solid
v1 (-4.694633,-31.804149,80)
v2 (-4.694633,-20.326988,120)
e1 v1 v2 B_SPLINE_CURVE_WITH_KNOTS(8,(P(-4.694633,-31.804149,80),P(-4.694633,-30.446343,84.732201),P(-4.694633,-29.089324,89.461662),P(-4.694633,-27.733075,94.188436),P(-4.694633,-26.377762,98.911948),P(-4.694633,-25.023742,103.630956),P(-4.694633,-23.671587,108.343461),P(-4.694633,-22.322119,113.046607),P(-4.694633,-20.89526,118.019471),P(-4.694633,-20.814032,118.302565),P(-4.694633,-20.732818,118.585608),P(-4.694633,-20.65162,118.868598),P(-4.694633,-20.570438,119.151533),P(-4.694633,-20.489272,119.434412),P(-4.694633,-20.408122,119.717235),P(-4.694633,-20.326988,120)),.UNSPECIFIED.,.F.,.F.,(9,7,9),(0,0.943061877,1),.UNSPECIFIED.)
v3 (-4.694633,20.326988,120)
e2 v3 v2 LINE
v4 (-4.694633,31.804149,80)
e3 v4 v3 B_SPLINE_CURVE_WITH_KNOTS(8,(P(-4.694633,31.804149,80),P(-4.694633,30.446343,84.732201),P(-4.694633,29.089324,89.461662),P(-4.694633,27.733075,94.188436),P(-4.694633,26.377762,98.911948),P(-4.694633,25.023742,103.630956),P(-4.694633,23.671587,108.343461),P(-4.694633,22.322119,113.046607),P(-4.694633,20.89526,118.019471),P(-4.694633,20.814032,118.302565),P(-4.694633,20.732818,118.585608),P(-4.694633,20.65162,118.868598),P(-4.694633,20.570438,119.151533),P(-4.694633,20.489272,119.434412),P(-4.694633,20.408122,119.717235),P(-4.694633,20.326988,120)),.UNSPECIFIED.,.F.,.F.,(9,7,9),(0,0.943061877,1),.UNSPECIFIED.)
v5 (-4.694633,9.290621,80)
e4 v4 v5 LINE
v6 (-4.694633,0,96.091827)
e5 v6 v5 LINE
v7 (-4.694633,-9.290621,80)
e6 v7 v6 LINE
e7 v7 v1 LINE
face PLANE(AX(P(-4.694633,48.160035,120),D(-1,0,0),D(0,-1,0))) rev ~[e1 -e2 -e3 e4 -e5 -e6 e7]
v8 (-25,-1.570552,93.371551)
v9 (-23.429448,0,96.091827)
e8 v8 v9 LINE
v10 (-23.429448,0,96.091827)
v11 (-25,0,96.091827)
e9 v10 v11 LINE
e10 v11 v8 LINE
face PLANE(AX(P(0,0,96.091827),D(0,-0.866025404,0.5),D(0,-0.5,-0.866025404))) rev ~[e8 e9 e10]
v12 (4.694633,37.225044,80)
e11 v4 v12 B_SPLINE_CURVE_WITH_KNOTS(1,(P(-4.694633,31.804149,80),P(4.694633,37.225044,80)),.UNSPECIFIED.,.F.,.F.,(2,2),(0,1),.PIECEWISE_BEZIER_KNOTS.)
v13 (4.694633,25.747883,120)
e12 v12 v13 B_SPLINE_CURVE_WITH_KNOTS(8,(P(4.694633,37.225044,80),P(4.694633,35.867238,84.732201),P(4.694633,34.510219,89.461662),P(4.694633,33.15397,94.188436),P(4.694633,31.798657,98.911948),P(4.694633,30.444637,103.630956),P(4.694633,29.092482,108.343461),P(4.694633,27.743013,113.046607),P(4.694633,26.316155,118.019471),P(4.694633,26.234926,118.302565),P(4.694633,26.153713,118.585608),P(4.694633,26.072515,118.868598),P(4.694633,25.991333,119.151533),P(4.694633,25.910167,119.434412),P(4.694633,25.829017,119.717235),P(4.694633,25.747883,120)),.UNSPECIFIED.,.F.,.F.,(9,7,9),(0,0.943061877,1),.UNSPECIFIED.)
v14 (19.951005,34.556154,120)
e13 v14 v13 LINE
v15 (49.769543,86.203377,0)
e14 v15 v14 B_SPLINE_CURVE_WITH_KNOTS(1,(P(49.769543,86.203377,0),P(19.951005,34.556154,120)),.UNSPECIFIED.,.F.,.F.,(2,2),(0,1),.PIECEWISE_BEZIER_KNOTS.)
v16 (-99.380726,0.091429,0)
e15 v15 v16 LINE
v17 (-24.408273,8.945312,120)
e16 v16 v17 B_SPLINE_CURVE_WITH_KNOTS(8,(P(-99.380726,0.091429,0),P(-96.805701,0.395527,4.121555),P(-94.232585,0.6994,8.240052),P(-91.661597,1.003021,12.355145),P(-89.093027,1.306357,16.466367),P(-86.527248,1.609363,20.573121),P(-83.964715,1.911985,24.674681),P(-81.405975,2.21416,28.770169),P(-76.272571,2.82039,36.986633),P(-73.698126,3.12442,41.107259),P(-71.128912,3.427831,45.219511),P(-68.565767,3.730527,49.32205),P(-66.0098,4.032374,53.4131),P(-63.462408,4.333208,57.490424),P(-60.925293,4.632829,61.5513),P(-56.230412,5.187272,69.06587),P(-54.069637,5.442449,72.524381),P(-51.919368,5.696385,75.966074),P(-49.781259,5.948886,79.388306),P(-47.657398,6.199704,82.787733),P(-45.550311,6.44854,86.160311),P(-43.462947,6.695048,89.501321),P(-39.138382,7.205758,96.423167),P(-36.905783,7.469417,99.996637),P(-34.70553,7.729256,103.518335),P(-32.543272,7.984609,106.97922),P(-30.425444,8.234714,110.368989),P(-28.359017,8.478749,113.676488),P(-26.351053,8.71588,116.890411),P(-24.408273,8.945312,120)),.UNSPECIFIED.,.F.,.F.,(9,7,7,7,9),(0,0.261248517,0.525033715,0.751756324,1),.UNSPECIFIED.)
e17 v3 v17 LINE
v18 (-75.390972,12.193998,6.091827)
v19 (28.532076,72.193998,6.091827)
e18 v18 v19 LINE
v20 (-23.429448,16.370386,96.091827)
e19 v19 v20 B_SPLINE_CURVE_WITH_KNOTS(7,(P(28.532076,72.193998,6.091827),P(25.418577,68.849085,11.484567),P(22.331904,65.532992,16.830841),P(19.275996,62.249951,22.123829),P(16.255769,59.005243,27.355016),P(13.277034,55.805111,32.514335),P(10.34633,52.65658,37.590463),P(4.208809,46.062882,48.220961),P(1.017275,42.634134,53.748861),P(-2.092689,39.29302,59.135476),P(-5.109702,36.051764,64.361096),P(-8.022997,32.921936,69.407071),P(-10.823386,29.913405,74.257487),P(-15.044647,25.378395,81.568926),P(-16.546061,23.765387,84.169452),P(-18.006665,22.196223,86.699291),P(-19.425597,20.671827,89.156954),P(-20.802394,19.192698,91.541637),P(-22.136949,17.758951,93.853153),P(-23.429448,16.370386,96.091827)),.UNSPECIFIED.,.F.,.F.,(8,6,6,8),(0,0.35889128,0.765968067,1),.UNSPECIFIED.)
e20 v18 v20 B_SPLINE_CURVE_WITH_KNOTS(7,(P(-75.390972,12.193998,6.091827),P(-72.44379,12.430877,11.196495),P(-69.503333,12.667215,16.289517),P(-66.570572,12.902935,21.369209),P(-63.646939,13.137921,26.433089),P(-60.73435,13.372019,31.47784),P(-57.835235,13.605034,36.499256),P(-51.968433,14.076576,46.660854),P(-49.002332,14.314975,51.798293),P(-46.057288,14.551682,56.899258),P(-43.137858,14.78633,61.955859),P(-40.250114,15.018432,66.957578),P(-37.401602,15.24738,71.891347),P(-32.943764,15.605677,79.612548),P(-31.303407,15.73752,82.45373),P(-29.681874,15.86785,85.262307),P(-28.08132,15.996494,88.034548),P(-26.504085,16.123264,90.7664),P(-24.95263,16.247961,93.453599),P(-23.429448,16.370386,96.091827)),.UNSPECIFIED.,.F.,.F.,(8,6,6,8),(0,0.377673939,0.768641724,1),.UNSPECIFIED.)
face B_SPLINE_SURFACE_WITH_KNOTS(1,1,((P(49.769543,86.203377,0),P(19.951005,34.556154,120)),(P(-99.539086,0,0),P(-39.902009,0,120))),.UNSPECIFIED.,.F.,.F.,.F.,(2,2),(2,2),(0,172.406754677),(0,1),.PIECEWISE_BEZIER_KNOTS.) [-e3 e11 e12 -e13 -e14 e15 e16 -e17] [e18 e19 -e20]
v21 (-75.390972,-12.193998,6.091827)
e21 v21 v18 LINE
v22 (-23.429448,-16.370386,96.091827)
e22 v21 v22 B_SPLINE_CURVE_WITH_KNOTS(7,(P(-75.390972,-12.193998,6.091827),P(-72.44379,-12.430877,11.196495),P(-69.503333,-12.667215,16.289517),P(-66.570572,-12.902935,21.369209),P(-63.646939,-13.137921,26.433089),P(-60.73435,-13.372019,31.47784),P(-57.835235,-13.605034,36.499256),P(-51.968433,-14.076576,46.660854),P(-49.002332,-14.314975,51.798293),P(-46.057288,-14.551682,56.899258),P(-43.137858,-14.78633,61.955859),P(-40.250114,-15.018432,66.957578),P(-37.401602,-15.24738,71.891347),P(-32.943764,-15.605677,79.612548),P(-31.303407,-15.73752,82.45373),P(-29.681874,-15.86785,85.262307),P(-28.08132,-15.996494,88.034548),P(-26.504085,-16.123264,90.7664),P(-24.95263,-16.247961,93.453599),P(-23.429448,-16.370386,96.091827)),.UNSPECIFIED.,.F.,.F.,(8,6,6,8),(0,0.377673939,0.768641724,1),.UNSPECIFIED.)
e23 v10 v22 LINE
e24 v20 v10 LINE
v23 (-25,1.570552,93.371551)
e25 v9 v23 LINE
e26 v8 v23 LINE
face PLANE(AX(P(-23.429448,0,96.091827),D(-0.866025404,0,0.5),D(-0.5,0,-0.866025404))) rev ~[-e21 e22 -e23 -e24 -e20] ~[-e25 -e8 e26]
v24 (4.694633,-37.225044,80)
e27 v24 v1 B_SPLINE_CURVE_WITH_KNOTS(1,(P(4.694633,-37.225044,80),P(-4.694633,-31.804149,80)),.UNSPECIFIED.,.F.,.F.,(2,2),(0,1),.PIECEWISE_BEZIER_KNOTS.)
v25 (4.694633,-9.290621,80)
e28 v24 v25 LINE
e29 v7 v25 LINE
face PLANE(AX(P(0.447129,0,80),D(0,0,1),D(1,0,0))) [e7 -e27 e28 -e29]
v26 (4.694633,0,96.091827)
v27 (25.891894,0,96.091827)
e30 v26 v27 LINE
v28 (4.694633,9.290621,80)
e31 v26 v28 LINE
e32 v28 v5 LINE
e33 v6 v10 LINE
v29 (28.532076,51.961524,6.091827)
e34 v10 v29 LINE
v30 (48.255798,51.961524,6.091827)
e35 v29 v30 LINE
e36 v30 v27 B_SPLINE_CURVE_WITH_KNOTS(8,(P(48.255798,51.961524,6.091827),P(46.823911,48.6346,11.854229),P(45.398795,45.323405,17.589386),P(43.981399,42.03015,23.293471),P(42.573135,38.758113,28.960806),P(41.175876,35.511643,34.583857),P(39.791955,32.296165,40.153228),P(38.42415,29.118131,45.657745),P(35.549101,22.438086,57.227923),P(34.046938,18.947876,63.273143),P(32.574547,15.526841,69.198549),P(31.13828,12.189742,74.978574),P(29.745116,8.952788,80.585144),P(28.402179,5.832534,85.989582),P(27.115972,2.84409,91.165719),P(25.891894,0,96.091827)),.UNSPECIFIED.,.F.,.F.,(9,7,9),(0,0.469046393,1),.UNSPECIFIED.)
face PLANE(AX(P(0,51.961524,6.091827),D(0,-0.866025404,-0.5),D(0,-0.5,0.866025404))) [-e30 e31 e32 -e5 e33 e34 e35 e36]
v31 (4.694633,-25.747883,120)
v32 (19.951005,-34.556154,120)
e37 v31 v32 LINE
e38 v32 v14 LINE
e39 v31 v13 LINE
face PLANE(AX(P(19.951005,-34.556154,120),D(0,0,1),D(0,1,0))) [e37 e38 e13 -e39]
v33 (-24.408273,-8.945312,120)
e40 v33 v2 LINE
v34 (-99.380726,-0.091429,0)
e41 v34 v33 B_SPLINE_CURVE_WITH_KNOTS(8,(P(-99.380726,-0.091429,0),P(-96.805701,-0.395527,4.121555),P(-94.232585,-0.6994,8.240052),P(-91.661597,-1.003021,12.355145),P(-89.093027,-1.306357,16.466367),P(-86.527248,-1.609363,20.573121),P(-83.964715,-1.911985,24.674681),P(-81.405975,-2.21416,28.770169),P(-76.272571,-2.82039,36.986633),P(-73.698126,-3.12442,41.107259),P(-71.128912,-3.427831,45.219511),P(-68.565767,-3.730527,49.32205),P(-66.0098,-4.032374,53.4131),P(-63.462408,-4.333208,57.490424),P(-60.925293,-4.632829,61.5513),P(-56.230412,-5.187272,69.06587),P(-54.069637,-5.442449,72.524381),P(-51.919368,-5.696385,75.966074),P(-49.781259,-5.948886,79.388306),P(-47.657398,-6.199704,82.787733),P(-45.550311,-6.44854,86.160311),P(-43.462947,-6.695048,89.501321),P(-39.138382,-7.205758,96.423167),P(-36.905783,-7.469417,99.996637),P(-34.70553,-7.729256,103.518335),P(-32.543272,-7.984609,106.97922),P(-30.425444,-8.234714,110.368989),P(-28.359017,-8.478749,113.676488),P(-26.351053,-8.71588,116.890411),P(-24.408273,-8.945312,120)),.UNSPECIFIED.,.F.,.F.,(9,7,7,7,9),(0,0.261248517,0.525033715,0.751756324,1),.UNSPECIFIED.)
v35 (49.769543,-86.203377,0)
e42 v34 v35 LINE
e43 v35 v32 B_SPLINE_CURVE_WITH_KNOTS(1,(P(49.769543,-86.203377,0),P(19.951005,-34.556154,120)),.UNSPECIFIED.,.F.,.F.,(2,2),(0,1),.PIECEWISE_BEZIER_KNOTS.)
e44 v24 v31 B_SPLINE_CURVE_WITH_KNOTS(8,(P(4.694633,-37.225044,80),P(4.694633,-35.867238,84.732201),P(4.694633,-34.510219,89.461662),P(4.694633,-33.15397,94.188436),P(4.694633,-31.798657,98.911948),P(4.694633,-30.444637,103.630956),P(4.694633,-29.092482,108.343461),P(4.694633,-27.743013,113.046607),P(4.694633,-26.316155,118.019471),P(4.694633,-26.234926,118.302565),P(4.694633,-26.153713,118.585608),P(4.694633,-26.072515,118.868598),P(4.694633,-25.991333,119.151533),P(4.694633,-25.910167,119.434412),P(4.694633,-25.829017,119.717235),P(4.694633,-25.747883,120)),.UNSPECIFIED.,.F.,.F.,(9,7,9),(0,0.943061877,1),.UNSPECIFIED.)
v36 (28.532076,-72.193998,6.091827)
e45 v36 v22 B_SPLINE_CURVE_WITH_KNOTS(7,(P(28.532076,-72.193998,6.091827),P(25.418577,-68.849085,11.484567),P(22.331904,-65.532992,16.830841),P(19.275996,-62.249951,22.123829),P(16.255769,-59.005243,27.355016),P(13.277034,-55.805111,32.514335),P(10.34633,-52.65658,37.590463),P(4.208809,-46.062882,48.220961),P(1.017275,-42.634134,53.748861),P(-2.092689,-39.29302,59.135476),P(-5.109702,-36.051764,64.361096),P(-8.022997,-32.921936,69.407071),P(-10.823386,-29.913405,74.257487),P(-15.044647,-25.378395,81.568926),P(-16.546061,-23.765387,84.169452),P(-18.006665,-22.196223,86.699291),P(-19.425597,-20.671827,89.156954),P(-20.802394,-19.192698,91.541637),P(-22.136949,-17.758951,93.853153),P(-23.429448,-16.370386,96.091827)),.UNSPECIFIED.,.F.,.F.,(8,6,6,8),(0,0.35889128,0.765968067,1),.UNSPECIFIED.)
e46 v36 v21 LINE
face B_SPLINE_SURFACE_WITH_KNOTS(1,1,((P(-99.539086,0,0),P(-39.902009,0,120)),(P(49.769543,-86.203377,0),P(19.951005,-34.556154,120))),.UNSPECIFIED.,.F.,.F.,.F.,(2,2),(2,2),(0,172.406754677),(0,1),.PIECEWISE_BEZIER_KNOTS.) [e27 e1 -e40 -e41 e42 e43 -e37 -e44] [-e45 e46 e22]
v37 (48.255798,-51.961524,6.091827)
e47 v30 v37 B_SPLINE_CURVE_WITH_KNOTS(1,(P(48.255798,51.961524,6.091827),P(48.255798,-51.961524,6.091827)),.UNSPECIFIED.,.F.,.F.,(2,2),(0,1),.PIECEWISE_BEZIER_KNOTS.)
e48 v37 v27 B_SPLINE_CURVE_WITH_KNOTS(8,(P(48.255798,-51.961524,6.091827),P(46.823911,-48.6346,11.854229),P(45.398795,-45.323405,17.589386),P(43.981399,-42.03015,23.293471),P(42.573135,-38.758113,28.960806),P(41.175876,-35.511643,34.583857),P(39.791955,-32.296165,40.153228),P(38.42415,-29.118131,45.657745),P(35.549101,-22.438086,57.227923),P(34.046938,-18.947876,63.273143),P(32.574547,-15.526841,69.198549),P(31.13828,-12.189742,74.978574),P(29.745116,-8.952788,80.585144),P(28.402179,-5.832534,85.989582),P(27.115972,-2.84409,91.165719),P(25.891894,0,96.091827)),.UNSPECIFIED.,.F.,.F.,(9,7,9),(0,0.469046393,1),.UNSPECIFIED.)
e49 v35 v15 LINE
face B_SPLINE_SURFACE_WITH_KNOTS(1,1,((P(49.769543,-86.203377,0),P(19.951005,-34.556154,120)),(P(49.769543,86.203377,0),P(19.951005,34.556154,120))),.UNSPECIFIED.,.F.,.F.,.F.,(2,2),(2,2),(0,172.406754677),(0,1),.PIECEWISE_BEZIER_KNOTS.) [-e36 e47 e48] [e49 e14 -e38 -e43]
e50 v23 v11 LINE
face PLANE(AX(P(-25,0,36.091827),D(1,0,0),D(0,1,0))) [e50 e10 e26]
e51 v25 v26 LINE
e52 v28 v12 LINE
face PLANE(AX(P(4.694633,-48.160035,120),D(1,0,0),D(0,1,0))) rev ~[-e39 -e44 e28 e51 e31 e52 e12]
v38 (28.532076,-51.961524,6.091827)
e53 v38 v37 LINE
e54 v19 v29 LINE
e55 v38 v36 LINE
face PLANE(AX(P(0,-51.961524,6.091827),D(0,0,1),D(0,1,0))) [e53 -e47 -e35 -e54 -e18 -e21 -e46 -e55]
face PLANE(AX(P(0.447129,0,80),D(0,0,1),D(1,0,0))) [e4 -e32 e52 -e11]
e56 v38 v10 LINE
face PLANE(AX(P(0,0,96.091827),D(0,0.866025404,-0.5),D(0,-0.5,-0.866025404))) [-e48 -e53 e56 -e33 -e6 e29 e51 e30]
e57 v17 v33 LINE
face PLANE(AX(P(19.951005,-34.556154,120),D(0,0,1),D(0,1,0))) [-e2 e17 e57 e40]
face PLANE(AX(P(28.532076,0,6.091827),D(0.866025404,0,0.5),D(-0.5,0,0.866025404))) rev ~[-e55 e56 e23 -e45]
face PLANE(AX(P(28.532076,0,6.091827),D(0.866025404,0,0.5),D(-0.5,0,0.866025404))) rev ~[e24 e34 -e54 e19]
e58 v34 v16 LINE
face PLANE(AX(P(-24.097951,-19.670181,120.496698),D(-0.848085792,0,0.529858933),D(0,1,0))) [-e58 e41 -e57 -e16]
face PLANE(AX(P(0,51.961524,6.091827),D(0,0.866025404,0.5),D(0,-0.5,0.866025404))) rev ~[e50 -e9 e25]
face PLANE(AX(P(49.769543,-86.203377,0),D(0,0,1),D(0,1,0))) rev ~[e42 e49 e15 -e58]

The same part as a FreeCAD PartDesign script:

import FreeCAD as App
import Part
import Sketcher
Q = App.Units.Quantity


def add_polygon(sketch, points):
    """Adds a closed chain of lines whose ends are joined by coincident constraints."""
    first, n = sketch.GeometryCount, len(points)
    for a, b in zip(points, points[1:] + points[:1]):
        sketch.addGeometry(Part.LineSegment(App.Vector(*a, 0), App.Vector(*b, 0)), False)
    for i in range(n):
        sketch.addConstraint(Sketcher.Constraint("Coincident", first + i, 2, first + (i + 1) % n, 1))

doc = App.newDocument("Part")
body = doc.addObject("PartDesign::Body", "Body")

# Sketch on XY plane
sketch1 = body.newObject("Sketcher::SketchObject", "Sketch")
sketch1.AttachmentSupport = (doc.getObject("XY_Plane"), [""])
sketch1.MapMode = "FlatFace"
add_polygon(sketch1, [(50, -86), (50, 86), (-100, 0)])  # lines 0-2
sketch1.addConstraint([
    Sketcher.Constraint("Vertical", 0),
    Sketcher.Constraint("PointOnObject", 1, 2, -1),
    Sketcher.Constraint("Equal", 1, 2),
    Sketcher.Constraint("Angle", 1, Q("-150 deg")),
    Sketcher.Constraint("DistanceY", 0, 1, 0, 2, 172.406755),
    Sketcher.Constraint("DistanceX", -1, 1, 0, 2, 49.769543),
])

# Sketch on XY plane
sketch2 = body.newObject("Sketcher::SketchObject", "Sketch001")
sketch2.AttachmentSupport = (doc.getObject("XY_Plane"), [""])
sketch2.MapMode = "FlatFace"
sketch2.AttachmentOffset = App.Placement(App.Vector(0, 0, 120), App.Rotation())
add_polygon(sketch2, [(20, -35), (20, 35), (-40, 0)])  # lines 0-2
sketch2.addConstraint([
    Sketcher.Constraint("Vertical", 0),
    Sketcher.Constraint("PointOnObject", 1, 2, -1),
    Sketcher.Constraint("Equal", 1, 2),
    Sketcher.Constraint("Angle", 1, Q("-150 deg")),
    Sketcher.Constraint("DistanceY", 0, 1, 0, 2, 69.112307),
    Sketcher.Constraint("DistanceX", 1, 2, -1, 1, 39.902009),
])

additiveloft = body.newObject("PartDesign::AdditiveLoft", "AdditiveLoft")
additiveloft.Profile = sketch1
additiveloft.Sections = [sketch2]

# Sketch on XY plane
sketch3 = body.newObject("Sketcher::SketchObject", "Sketch002")
sketch3.AttachmentSupport = (doc.getObject("XY_Plane"), [""])
sketch3.MapMode = "FlatFace"
sketch3.AttachmentOffset = App.Placement(App.Vector(0, 0, 120), App.Rotation())
add_polygon(sketch3, [(5, 48), (-5, 48), (-5, -48), (5, -48)])  # lines 0-3
sketch3.addConstraint([
    Sketcher.Constraint("Horizontal", 0),
    Sketcher.Constraint("Vertical", 1),
    Sketcher.Constraint("Horizontal", 2),
    Sketcher.Constraint("Vertical", 3),
    Sketcher.Constraint("Symmetric", 0, 2, 2, 2, -1, 1),
    Sketcher.Constraint("DistanceY", 1, 2, 1, 1, 96.32007),
    Sketcher.Constraint("DistanceX", 0, 2, 0, 1, 9.389265),
])
pocket1 = body.newObject("PartDesign::Pocket", "Pocket")
pocket1.Profile = sketch3
pocket1.Length = 40

# Sketch on XY plane
sketch4 = body.newObject("Sketcher::SketchObject", "Sketch003")
sketch4.AttachmentSupport = (doc.getObject("XY_Plane"), [""])
sketch4.MapMode = "FlatFace"
sketch4.AttachmentOffset = App.Placement(App.Vector(0, 0, 120), App.Rotation())
add_polygon(sketch4, [(-40, 20), (-40, -20), (-24, -20), (-24, 20)])  # lines 0-3
sketch4.addConstraint([
    Sketcher.Constraint("Vertical", 0),
    Sketcher.Constraint("Horizontal", 1),
    Sketcher.Constraint("Vertical", 2),
    Sketcher.Constraint("Horizontal", 3),
    Sketcher.Constraint("DistanceY", 0, 2, 0, 1, 39.340362),
    Sketcher.Constraint("DistanceX", 1, 1, 1, 2, 15.986472),
    Sketcher.Constraint("DistanceY", 0, 2, -1, 1, 19.670181),
    Sketcher.Constraint("DistanceX", 0, 2, -1, 1, 40.394746),
])

# Sketch on an angled plane
sketch5 = body.newObject("Sketcher::SketchObject", "Sketch004")
sketch5.Placement = App.Placement(App.Vector(-77.142874, 0, 48.196587), App.Rotation(App.Vector(-0.529858933, 0, -0.848085792), App.Vector(0, 0.999999999, 0), App.Vector(0.848085792, 0, -0.529858933), "ZXY"))
sketch5.addGeometry(Part.LineSegment(App.Vector(-85, 0, 0), App.Vector(57, 0, 0)), False)
sketch5.addConstraint([
    Sketcher.Constraint("Horizontal", 0),
    Sketcher.Constraint("PointOnObject", 0, 1, -1),
    Sketcher.Constraint("DistanceX", 0, 1, 0, 2, 142.080788),
    Sketcher.Constraint("DistanceX", 0, 1, -1, 1, 85.25094),
])
doc.recompute()

subtractivepipe = body.newObject("PartDesign::SubtractivePipe", "SubtractivePipe")
subtractivepipe.Profile = sketch4
subtractivepipe.Spine = (sketch5, ["Edge1"])

# Sketch on XZ plane
sketch6 = body.newObject("Sketcher::SketchObject", "Sketch005")
sketch6.AttachmentSupport = (doc.getObject("XZ_Plane"), [""])
sketch6.MapMode = "FlatFace"
add_polygon(sketch6, [(-75, 6), (29, 6), (-23, 96)])  # lines 0-2
sketch6.addConstraint([
    Sketcher.Constraint("Horizontal", 0),
    Sketcher.Constraint("Equal", 1, 2),
    Sketcher.Constraint("Angle", 1, Q("120 deg")),
    Sketcher.Constraint("DistanceY", 0, 2, 1, 2, 90.0),
    Sketcher.Constraint("DistanceX", -1, 1, 0, 2, 28.532076),
    Sketcher.Constraint("DistanceY", -1, 1, 0, 2, 6.091827),
])
pocket2 = body.newObject("PartDesign::Pocket", "Pocket001")
pocket2.Profile = sketch6
pocket2.Type = "ThroughAll"
pocket2.Midplane = True

# Sketch on YZ plane
sketch7 = body.newObject("Sketcher::SketchObject", "Sketch006")
sketch7.AttachmentSupport = (doc.getObject("YZ_Plane"), [""])
sketch7.MapMode = "FlatFace"
add_polygon(sketch7, [(-52, 6), (52, 6), (0, 96)])  # lines 0-2
sketch7.addConstraint([
    Sketcher.Constraint("Horizontal", 0),
    Sketcher.Constraint("PointOnObject", 1, 2, -2),
    Sketcher.Constraint("Equal", 1, 2),
    Sketcher.Constraint("Angle", 1, Q("120 deg")),
    Sketcher.Constraint("DistanceY", 0, 2, 1, 2, 90.0),
    Sketcher.Constraint("DistanceY", -1, 1, 0, 2, 6.091827),
])
pocket3 = body.newObject("PartDesign::Pocket", "Pocket002")
pocket3.Profile = sketch7
pocket3.Type = "TwoLengths"
pocket3.Length = 100
pocket3.Length2 = 25
pocket3.Reversed = True

doc.recompute()
